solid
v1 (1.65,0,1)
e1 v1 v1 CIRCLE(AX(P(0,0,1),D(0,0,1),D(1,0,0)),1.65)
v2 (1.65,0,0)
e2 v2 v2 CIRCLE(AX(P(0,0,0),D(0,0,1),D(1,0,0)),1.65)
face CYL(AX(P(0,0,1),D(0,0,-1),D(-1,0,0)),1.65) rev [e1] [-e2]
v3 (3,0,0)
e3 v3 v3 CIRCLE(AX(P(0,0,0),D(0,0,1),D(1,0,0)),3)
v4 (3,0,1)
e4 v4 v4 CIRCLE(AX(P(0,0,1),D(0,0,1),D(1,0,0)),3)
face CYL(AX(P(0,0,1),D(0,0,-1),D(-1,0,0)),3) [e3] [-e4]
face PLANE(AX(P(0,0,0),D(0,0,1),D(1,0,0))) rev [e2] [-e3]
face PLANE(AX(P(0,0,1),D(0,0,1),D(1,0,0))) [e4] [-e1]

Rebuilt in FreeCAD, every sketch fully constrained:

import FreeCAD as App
import Part
import Sketcher

V = App.Vector

doc = App.newDocument("Part")
body = doc.addObject("PartDesign::Body", "Body")

sketch1 = doc.addObject("Sketcher::SketchObject", "Sketch")
body.addObject(sketch1)
sketch1.AttachmentSupport = (doc.XY_Plane, [""])
sketch1.MapMode = "FlatFace"
sketch1.addGeometry([
    Part.Circle(V(0, 0, 0), V(0, 0, 1), 3),
    Part.Circle(V(0, 0, 0), V(0, 0, 1), 1.6),
], False)
sketch1.addConstraint([
    Sketcher.Constraint("Coincident", 0, 3, -1, 1),
    Sketcher.Constraint("Coincident", 1, 3, -1, 1),
    Sketcher.Constraint("Diameter", 0, 6.0),
    Sketcher.Constraint("Diameter", 1, 3.3),
])
pad1 = doc.addObject("PartDesign::Pad", "Pad")
body.addObject(pad1)
pad1.Profile = sketch1
pad1.Length = 1

doc.recompute()
